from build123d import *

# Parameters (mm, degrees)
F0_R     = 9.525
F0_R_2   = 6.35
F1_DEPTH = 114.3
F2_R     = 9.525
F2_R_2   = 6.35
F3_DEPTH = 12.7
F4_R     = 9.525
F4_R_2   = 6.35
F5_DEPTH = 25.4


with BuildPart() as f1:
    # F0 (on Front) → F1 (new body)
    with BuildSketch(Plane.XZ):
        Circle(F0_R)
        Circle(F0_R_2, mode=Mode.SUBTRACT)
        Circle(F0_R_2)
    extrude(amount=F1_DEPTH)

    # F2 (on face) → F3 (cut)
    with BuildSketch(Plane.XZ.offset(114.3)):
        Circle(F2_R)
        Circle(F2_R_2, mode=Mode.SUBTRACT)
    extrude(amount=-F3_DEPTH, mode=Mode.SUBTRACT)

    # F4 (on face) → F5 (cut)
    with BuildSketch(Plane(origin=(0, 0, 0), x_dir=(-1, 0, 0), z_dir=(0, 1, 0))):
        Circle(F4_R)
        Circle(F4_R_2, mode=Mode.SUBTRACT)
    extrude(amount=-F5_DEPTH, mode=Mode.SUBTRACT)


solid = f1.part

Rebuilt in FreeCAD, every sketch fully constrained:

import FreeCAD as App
import Part
import Sketcher

V = App.Vector
Q = App.Units.Quantity

doc = App.newDocument("Part")
body = doc.addObject("PartDesign::Body", "Body")

# Sketch on XZ plane
sketch1 = body.newObject("Sketcher::SketchObject", "Sketch")
sketch1.AttachmentSupport = (doc.getObject("XZ_Plane"), [""])
sketch1.MapMode = "FlatFace"
sketch1.addGeometry(Part.Circle(V(0, 0, 0), V(0, 0, 1), 10), False)
sketch1.addConstraint([
    Sketcher.Constraint("Coincident", 0, 3, -1, 1),
    Sketcher.Constraint("Diameter", 0, Q("0.75 in")),
])
pad1 = body.newObject("PartDesign::Pad", "Pad")
pad1.Profile = sketch1
pad1.Length = Q("4.5 in")

# Sketch on XZ plane
sketch2 = body.newObject("Sketcher::SketchObject", "Sketch001")
sketch2.AttachmentSupport = (doc.getObject("XZ_Plane"), [""])
sketch2.MapMode = "FlatFace"
sketch2.AttachmentOffset = App.Placement(V(0, 0, 4.5 * 25.4), App.Rotation())
sketch2.addGeometry([
    Part.Circle(V(0, 0, 0), V(0, 0, 1), 10),
    Part.Circle(V(0, 0, 0), V(0, 0, 1), 6),
], False)
sketch2.addConstraint([
    Sketcher.Constraint("Coincident", 0, 3, -1, 1),
    Sketcher.Constraint("Coincident", 1, 3, -1, 1),
    Sketcher.Constraint("Diameter", 1, Q("0.5 in")),
    Sketcher.Constraint("Diameter", 0, Q("0.75 in")),
])
pocket1 = body.newObject("PartDesign::Pocket", "Pocket")
pocket1.Profile = sketch2
pocket1.Length = Q("0.5 in")

# Sketch on XZ plane
sketch3 = body.newObject("Sketcher::SketchObject", "Sketch002")
sketch3.AttachmentSupport = (doc.getObject("XZ_Plane"), [""])
sketch3.MapMode = "FlatFace"
sketch3.addGeometry([
    Part.Circle(V(0, 0, 0), V(0, 0, 1), 10),
    Part.Circle(V(0, 0, 0), V(0, 0, 1), 6),
], False)
sketch3.addConstraint([
    Sketcher.Constraint("Coincident", 0, 3, -1, 1),
    Sketcher.Constraint("Coincident", 1, 3, -1, 1),
    Sketcher.Constraint("Diameter", 1, Q("0.5 in")),
    Sketcher.Constraint("Diameter", 0, Q("0.75 in")),
])
pocket2 = body.newObject("PartDesign::Pocket", "Pocket001")
pocket2.Profile = sketch3
pocket2.Length = Q("1 in")
pocket2.Reversed = True

doc.recompute()
